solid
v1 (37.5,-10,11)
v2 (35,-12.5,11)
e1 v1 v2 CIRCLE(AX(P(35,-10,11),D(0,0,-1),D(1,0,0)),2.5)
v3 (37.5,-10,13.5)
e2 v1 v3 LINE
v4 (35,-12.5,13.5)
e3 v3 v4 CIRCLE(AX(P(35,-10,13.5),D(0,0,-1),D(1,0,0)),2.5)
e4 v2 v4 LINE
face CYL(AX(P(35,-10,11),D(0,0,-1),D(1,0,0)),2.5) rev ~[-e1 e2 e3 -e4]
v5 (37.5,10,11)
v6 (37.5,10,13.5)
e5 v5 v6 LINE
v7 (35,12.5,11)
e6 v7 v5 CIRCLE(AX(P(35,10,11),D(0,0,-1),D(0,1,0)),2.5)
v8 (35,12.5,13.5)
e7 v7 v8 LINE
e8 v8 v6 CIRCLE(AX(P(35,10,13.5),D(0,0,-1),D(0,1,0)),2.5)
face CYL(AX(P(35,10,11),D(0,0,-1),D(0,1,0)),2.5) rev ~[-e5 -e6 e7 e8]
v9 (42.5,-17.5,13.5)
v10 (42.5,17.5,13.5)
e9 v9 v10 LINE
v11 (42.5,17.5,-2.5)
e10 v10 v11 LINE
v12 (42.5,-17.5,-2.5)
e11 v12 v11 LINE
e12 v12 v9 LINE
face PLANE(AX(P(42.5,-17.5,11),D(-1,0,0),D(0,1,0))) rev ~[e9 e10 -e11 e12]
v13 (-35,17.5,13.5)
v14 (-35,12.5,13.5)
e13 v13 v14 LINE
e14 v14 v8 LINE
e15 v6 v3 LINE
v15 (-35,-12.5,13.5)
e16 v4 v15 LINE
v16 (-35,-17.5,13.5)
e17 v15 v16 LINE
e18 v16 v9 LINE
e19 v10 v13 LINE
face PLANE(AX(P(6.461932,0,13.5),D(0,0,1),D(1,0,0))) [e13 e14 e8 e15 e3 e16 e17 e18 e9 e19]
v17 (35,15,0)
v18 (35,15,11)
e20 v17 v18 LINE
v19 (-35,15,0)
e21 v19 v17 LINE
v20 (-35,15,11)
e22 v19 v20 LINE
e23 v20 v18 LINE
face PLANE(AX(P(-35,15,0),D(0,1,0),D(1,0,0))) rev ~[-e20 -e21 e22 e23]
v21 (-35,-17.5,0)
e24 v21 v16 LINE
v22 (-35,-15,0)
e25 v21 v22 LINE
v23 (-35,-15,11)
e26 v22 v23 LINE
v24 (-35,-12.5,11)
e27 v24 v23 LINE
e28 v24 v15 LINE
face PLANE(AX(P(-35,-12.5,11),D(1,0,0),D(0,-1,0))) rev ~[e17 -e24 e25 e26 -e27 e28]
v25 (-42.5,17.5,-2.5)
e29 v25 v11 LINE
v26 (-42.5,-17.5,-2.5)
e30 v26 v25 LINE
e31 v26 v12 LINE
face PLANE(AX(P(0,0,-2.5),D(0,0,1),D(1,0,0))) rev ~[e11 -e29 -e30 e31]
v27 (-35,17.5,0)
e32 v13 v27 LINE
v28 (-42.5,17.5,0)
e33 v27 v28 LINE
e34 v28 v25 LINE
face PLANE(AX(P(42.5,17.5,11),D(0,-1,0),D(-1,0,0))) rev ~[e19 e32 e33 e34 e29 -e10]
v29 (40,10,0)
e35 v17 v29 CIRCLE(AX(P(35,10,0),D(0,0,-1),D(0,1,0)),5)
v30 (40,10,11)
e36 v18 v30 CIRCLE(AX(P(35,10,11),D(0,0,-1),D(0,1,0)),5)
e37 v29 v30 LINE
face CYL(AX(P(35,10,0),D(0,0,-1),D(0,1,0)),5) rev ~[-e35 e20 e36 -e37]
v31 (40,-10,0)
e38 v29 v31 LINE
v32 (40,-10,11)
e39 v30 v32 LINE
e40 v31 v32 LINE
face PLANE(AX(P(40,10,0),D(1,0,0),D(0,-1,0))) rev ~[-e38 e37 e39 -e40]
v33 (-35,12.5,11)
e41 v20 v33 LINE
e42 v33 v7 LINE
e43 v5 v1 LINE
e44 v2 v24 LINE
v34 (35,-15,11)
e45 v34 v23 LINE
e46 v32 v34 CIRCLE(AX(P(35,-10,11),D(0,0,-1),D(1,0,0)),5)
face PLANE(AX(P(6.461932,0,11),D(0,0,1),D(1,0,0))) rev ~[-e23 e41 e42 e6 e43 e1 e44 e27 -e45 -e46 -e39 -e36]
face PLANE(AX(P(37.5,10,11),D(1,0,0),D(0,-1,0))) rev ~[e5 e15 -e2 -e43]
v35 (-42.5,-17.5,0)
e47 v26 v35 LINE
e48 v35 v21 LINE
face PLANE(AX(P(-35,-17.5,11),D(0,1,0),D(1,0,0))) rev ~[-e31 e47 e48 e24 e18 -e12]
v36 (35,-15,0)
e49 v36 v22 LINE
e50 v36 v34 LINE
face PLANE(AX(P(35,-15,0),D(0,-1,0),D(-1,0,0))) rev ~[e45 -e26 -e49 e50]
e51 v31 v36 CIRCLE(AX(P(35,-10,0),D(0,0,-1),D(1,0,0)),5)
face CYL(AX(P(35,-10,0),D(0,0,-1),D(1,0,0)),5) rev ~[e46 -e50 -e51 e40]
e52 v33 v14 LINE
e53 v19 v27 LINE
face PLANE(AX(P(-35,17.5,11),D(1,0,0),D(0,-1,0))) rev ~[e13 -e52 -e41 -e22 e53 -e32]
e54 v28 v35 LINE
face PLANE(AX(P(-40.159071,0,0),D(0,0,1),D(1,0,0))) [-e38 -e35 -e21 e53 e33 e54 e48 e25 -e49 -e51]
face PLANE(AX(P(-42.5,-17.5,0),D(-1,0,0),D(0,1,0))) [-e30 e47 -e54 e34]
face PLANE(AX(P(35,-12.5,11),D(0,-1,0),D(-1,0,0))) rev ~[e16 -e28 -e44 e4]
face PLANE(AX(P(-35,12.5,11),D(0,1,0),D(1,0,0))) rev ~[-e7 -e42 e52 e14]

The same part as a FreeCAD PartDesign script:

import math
import FreeCAD as App
import Part
import Sketcher

V = App.Vector

doc = App.newDocument("Part")
params = doc.addObject("Spreadsheet::Sheet", "Params")
for row, (alias, value) in enumerate([
    ("sketch1_width", "85 mm"),
    ("sketch1_height", "35 mm"),
    ("pad1_length", "2.5 mm"),
    ("sketch2_radius", "5 mm"),
    ("sketch2_width", "85 mm"),
    ("sketch2_width2", "70 mm"),
    ("sketch2_height", "35 mm"),
    ("sketch2_height2", "20 mm"),
    ("pad2_length", "11 mm"),
    ("sketch3_radius", "5 mm"),
    ("sketch3_height", "35 mm"),
    ("sketch3_height2", "20 mm"),
    ("sketch3_width", "7.5 mm"),
    ("pocket1_length", "11 mm"),
    ("sketch4_radius", "2.5 mm"),
    ("sketch4_width", "70 mm"),
    ("sketch4_height", "20 mm"),
    ("sketch4_height2", "5 mm"),
    ("sketch4_width2", "77.5 mm"),
    ("pad3_length", "2.5 mm"),
], start=1):
    params.set(f"A{row}", alias)
    params.set(f"B{row}", "=" + value)
    params.setAlias(f"B{row}", alias)

body = doc.addObject("PartDesign::Body", "Body")

# Sketch on XY plane
sketch1 = body.newObject("Sketcher::SketchObject", "Sketch")
sketch1.AttachmentSupport = (doc.getObject("XY_Plane"), [""])
sketch1.MapMode = "FlatFace"
sketch1.addGeometry([
    Part.LineSegment(V(-42, 18, 0), V(-42, -18, 0)),
    Part.LineSegment(V(-42, -18, 0), V(42, -18, 0)),
    Part.LineSegment(V(42, -18, 0), V(42, 18, 0)),
    Part.LineSegment(V(42, 18, 0), V(-42, 18, 0)),
], False)
sketch1.addConstraint([
    Sketcher.Constraint("Coincident", 0, 2, 1, 1),
    Sketcher.Constraint("Coincident", 1, 2, 2, 1),
    Sketcher.Constraint("Coincident", 2, 2, 3, 1),
    Sketcher.Constraint("Coincident", 3, 2, 0, 1),
    Sketcher.Constraint("Vertical", 0),
    Sketcher.Constraint("Horizontal", 1),
    Sketcher.Constraint("Vertical", 2),
    Sketcher.Constraint("Horizontal", 3),
    Sketcher.Constraint("Symmetric", 0, 2, 2, 2, -1, 1),
    Sketcher.Constraint("DistanceX", 1, 1, 1, 2, 85.0),
    Sketcher.Constraint("DistanceY", 0, 2, 0, 1, 35.0),
])
sketch1.setExpression("Constraints[9]", "Params.sketch1_width")
sketch1.setExpression("Constraints[10]", "Params.sketch1_height")
pad1 = body.newObject("PartDesign::Pad", "Pad")
pad1.Profile = sketch1
pad1.setExpression("Length", "Params.pad1_length")
pad1.Reversed = True

# Sketch on XY plane
sketch2 = body.newObject("Sketcher::SketchObject", "Sketch001")
sketch2.AttachmentSupport = (doc.getObject("XY_Plane"), [""])
sketch2.MapMode = "FlatFace"
sketch2.addGeometry([
    Part.LineSegment(V(-42, 18, 0), V(-42, -18, 0)),  # 0
    Part.LineSegment(V(-42, -18, 0), V(42, -18, 0)),  # 1
    Part.LineSegment(V(42, -18, 0), V(42, 18, 0)),  # 2
    Part.LineSegment(V(42, 18, 0), V(-42, 18, 0)),  # 3
    Part.LineSegment(V(-40, -10, 0), V(-40, 10, 0)),  # 4
    Part.ArcOfCircle(Part.Circle(V(-35, 10, 0), V(0, 0, 1), 5), math.radians(90), math.radians(180)),  # 5
    Part.LineSegment(V(-35, 15, 0), V(35, 15, 0)),  # 6
    Part.ArcOfCircle(Part.Circle(V(35, 10, 0), V(0, 0, 1), 5), math.radians(0), math.radians(90)),  # 7
    Part.LineSegment(V(40, 10, 0), V(40, -10, 0)),  # 8
    Part.ArcOfCircle(Part.Circle(V(35, -10, 0), V(0, 0, 1), 5), math.radians(-90), math.radians(0)),  # 9
    Part.LineSegment(V(35, -15, 0), V(-35, -15, 0)),  # 10
    Part.ArcOfCircle(Part.Circle(V(-35, -10, 0), V(0, 0, 1), 5), math.radians(180), math.radians(270)),  # 11
], False)
sketch2.addConstraint([
    Sketcher.Constraint("Coincident", 0, 2, 1, 1),
    Sketcher.Constraint("Coincident", 1, 2, 2, 1),
    Sketcher.Constraint("Coincident", 2, 2, 3, 1),
    Sketcher.Constraint("Coincident", 3, 2, 0, 1),
    Sketcher.Constraint("Tangent", 4, 2, 5, 2),
    Sketcher.Constraint("Tangent", 5, 1, 6, 1),
    Sketcher.Constraint("Tangent", 6, 2, 7, 2),
    Sketcher.Constraint("Tangent", 7, 1, 8, 1),
    Sketcher.Constraint("Tangent", 8, 2, 9, 2),
    Sketcher.Constraint("Tangent", 9, 1, 10, 1),
    Sketcher.Constraint("Tangent", 10, 2, 11, 2),
    Sketcher.Constraint("Tangent", 11, 1, 4, 1),
    Sketcher.Constraint("Vertical", 0),
    Sketcher.Constraint("Horizontal", 1),
    Sketcher.Constraint("Vertical", 2),
    Sketcher.Constraint("Horizontal", 3),
    Sketcher.Constraint("Vertical", 4),
    Sketcher.Constraint("Horizontal", 6),
    Sketcher.Constraint("Vertical", 8),
    Sketcher.Constraint("Horizontal", 10),
    Sketcher.Constraint("Equal", 5, 7),
    Sketcher.Constraint("Equal", 7, 9),
    Sketcher.Constraint("Equal", 9, 11),
    Sketcher.Constraint("Symmetric", 5, 3, 9, 3, -1, 1),
    Sketcher.Constraint("Symmetric", 0, 2, 2, 2, -1, 1),
    Sketcher.Constraint("Radius", 5, 5.0),
    Sketcher.Constraint("DistanceX", 1, 1, 1, 2, 85.0),
    Sketcher.Constraint("DistanceX", 6, 1, 6, 2, 70.0),
    Sketcher.Constraint("DistanceY", 0, 2, 0, 1, 35.0),
    Sketcher.Constraint("DistanceY", 4, 1, 4, 2, 20.0),
])
sketch2.setExpression("Constraints[25]", "Params.sketch2_radius")
sketch2.setExpression("Constraints[26]", "Params.sketch2_width")
sketch2.setExpression("Constraints[27]", "Params.sketch2_width2")
sketch2.setExpression("Constraints[28]", "Params.sketch2_height")
sketch2.setExpression("Constraints[29]", "Params.sketch2_height2")
pad2 = body.newObject("PartDesign::Pad", "Pad001")
pad2.Profile = sketch2
pad2.setExpression("Length", "Params.pad2_length")

# Sketch on XY plane
sketch3 = body.newObject("Sketcher::SketchObject", "Sketch002")
sketch3.AttachmentSupport = (doc.getObject("XY_Plane"), [""])
sketch3.MapMode = "FlatFace"
sketch3.AttachmentOffset = App.Placement(V(0, 0, 11), App.Rotation())
sketch3.addGeometry([
    Part.LineSegment(V(-35, 15, 0), V(-35, 17.5, 0)),  # 0
    Part.LineSegment(V(-35, 17.5, 0), V(-42.5, 17.5, 0)),  # 1
    Part.LineSegment(V(-42.5, 17.5, 0), V(-42.5, -17.5, 0)),  # 2
    Part.LineSegment(V(-42.5, -17.5, 0), V(-35, -17.5, 0)),  # 3
    Part.LineSegment(V(-35, -17.5, 0), V(-35, -15, 0)),  # 4
    Part.ArcOfCircle(Part.Circle(V(-35, -10, 0), V(0, 0, 1), 5), math.radians(180), math.radians(270)),  # 5
    Part.LineSegment(V(-40, -10, 0), V(-40, 10, 0)),  # 6
    Part.ArcOfCircle(Part.Circle(V(-35, 10, 0), V(0, 0, 1), 5), math.radians(90), math.radians(180)),  # 7
], False)
sketch3.addConstraint([
    Sketcher.Constraint("Coincident", 0, 2, 1, 1),
    Sketcher.Constraint("Coincident", 1, 2, 2, 1),
    Sketcher.Constraint("Coincident", 2, 2, 3, 1),
    Sketcher.Constraint("Coincident", 3, 2, 4, 1),
    Sketcher.Constraint("Coincident", 4, 2, 5, 2),
    Sketcher.Constraint("Tangent", 5, 1, 6, 1),
    Sketcher.Constraint("Tangent", 6, 2, 7, 2),
    Sketcher.Constraint("Coincident", 7, 1, 0, 1),
    Sketcher.Constraint("Vertical", 0),
    Sketcher.Constraint("Horizontal", 1),
    Sketcher.Constraint("Vertical", 2),
    Sketcher.Constraint("Horizontal", 3),
    Sketcher.Constraint("Vertical", 4),
    Sketcher.Constraint("Vertical", 6),
    Sketcher.Constraint("Equal", 5, 7),
    Sketcher.Constraint("Symmetric", 0, 2, 3, 2, -1),
    Sketcher.Constraint("Vertical", 7, 3, 0, 2),
    Sketcher.Constraint("Equal", 0, 4),
    Sketcher.Constraint("Radius", 5, 5.0),
    Sketcher.Constraint("DistanceY", 2, 2, 2, 1, 35.0),
    Sketcher.Constraint("DistanceY", 6, 1, 6, 2, 20.0),
    Sketcher.Constraint("DistanceX", 1, 2, 1, 1, 7.5),
    Sketcher.Constraint("DistanceX", 5, 3, -1, 1, 35.0),
])
sketch3.setExpression("Constraints[18]", "Params.sketch3_radius")
sketch3.setExpression("Constraints[19]", "Params.sketch3_height")
sketch3.setExpression("Constraints[20]", "Params.sketch3_height2")
sketch3.setExpression("Constraints[21]", "Params.sketch3_width")
pocket1 = body.newObject("PartDesign::Pocket", "Pocket")
pocket1.Profile = sketch3
pocket1.setExpression("Length", "Params.pocket1_length")

# Sketch on XY plane
sketch4 = body.newObject("Sketcher::SketchObject", "Sketch003")
sketch4.AttachmentSupport = (doc.getObject("XY_Plane"), [""])
sketch4.MapMode = "FlatFace"
sketch4.AttachmentOffset = App.Placement(V(0, 0, 11), App.Rotation())
sketch4.addGeometry([
    Part.LineSegment(V(-35, 12.5, 0), V(35, 12.5, 0)),  # 0
    Part.ArcOfCircle(Part.Circle(V(35, 10, 0), V(0, 0, 1), 2.5), math.radians(0), math.radians(90)),  # 1
    Part.LineSegment(V(37.5, 10, 0), V(37.5, -10, 0)),  # 2
    Part.ArcOfCircle(Part.Circle(V(35, -10, 0), V(0, 0, 1), 2.5), math.radians(-90), math.radians(0)),  # 3
    Part.LineSegment(V(35, -12.5, 0), V(-35, -12.5, 0)),  # 4
    Part.LineSegment(V(-35, -12.5, 0), V(-35, -17.5, 0)),  # 5
    Part.LineSegment(V(-35, -17.5, 0), V(42.5, -17.5, 0)),  # 6
    Part.LineSegment(V(42.5, -17.5, 0), V(42.5, 17.5, 0)),  # 7
    Part.LineSegment(V(42.5, 17.5, 0), V(-35, 17.5, 0)),  # 8
    Part.LineSegment(V(-35, 17.5, 0), V(-35, 12.5, 0)),  # 9
], False)
sketch4.addConstraint([
    Sketcher.Constraint("Tangent", 0, 2, 1, 2),
    Sketcher.Constraint("Tangent", 1, 1, 2, 1),
    Sketcher.Constraint("Tangent", 2, 2, 3, 2),
    Sketcher.Constraint("Tangent", 3, 1, 4, 1),
    Sketcher.Constraint("Coincident", 4, 2, 5, 1),
    Sketcher.Constraint("Coincident", 5, 2, 6, 1),
    Sketcher.Constraint("Coincident", 6, 2, 7, 1),
    Sketcher.Constraint("Coincident", 7, 2, 8, 1),
    Sketcher.Constraint("Coincident", 8, 2, 9, 1),
    Sketcher.Constraint("Coincident", 9, 2, 0, 1),
    Sketcher.Constraint("Horizontal", 0),
    Sketcher.Constraint("Vertical", 2),
    Sketcher.Constraint("Horizontal", 4),
    Sketcher.Constraint("Vertical", 5),
    Sketcher.Constraint("Horizontal", 6),
    Sketcher.Constraint("Vertical", 7),
    Sketcher.Constraint("Horizontal", 8),
    Sketcher.Constraint("Vertical", 9),
    Sketcher.Constraint("Equal", 1, 3),
    Sketcher.Constraint("Symmetric", 0, 2, 4, 2, -1, 1),
    Sketcher.Constraint("Symmetric", 5, 2, 8, 2, -1),
    Sketcher.Constraint("Radius", 1, 2.5),
    Sketcher.Constraint("DistanceX", 0, 1, 0, 2, 70.0),
    Sketcher.Constraint("DistanceY", 2, 2, 2, 1, 20.0),
    Sketcher.Constraint("DistanceY", 5, 2, 5, 1, 5.0),
    Sketcher.Constraint("DistanceX", 6, 1, 6, 2, 77.5),
])
sketch4.setExpression("Constraints[21]", "Params.sketch4_radius")
sketch4.setExpression("Constraints[22]", "Params.sketch4_width")
sketch4.setExpression("Constraints[23]", "Params.sketch4_height")
sketch4.setExpression("Constraints[24]", "Params.sketch4_height2")
sketch4.setExpression("Constraints[25]", "Params.sketch4_width2")
pad3 = body.newObject("PartDesign::Pad", "Pad002")
pad3.Profile = sketch4
pad3.setExpression("Length", "Params.pad3_length")

doc.recompute()
